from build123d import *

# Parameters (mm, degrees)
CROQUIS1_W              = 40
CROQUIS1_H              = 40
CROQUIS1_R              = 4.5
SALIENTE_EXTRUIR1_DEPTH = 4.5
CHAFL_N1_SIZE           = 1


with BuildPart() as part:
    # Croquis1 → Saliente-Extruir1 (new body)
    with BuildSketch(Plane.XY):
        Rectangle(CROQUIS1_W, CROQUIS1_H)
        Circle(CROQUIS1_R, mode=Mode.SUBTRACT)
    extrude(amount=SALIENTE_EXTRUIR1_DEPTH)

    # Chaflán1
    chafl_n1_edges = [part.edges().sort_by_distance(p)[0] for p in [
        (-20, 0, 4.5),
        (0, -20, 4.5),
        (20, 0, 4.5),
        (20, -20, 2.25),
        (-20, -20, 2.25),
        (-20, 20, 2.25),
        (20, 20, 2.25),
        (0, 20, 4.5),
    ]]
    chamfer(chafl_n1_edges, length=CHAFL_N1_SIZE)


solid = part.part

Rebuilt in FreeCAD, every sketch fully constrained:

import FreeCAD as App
import Part
import Sketcher

V = App.Vector


def edges_at(feature, points):
    """Names of the edges that pass closest to the given points."""
    edges = feature.Shape.Edges
    near = lambda p: min(range(len(edges)), key=lambda i: edges[i].distToShape(Part.Vertex(*p))[0])
    return sorted({f"Edge{near(p) + 1}" for p in points})


def add_polygon(sketch, points):
    """Adds a closed chain of lines whose ends are joined by coincident constraints."""
    first, n = sketch.GeometryCount, len(points)
    for a, b in zip(points, points[1:] + points[:1]):
        sketch.addGeometry(Part.LineSegment(App.Vector(*a, 0), App.Vector(*b, 0)), False)
    for i in range(n):
        sketch.addConstraint(Sketcher.Constraint("Coincident", first + i, 2, first + (i + 1) % n, 1))

doc = App.newDocument("Part")
body = doc.addObject("PartDesign::Body", "Body")

# Sketch on XY plane
sketch1 = body.newObject("Sketcher::SketchObject", "Sketch")
sketch1.AttachmentSupport = (doc.getObject("XY_Plane"), [""])
sketch1.MapMode = "FlatFace"
add_polygon(sketch1, [(-20, 20), (-20, -20), (20, -20), (20, 20)])  # lines 0-3
sketch1.addGeometry(Part.Circle(V(0, 0, 0), V(0, 0, 1), 4.5), False)  # 4
sketch1.addConstraint([
    Sketcher.Constraint("Vertical", 0),
    Sketcher.Constraint("Horizontal", 1),
    Sketcher.Constraint("Vertical", 2),
    Sketcher.Constraint("Horizontal", 3),
    Sketcher.Constraint("Coincident", 4, 3, -1, 1),
    Sketcher.Constraint("Symmetric", 0, 2, 2, 2, -1, 1),
    Sketcher.Constraint("Equal", 3, 0),
    Sketcher.Constraint("Diameter", 4, 9.0),
    Sketcher.Constraint("DistanceX", 1, 1, 1, 2, 40.0),
])
pad1 = body.newObject("PartDesign::Pad", "Pad")
pad1.Profile = sketch1
pad1.Length = 4.5
doc.recompute()

chamfer = body.newObject("PartDesign::Chamfer", "Chamfer")
chamfer.Base = (pad1, edges_at(pad1, [
    (-20, 0, 4.5),
    (0, -20, 4.5),
    (20, 0, 4.5),
    (20, -20, 2.25),
    (-20, -20, 2.25),
    (-20, 20, 2.25),
    (20, 20, 2.25),
    (0, 20, 4.5),
]))
chamfer.Size = 1

doc.recompute()
